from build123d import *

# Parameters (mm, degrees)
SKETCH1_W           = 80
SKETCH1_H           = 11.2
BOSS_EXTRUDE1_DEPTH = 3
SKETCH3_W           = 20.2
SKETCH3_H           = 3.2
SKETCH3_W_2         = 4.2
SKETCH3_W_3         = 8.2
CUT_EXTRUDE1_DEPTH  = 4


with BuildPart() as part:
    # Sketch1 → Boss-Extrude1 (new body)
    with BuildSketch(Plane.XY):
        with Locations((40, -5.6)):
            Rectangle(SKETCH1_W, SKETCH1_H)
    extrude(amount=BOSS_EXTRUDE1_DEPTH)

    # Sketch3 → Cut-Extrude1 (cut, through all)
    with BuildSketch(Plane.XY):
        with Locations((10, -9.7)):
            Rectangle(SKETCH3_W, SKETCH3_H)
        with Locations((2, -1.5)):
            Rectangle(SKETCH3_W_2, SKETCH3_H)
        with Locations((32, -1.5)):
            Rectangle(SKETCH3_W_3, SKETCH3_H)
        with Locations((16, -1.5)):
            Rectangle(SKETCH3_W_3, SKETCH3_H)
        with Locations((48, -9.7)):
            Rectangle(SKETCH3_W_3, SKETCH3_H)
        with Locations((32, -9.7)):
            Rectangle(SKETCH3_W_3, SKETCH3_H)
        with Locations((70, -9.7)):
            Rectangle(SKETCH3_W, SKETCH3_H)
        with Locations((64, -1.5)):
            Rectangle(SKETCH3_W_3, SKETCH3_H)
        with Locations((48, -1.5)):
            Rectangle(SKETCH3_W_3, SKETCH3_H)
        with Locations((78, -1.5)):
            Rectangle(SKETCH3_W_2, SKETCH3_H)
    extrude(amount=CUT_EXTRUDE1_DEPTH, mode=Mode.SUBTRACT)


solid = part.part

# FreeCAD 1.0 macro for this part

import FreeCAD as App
import Part
import Sketcher
from FreeCAD import Vector
Q = App.Units.Quantity


def add_polygon(sketch, points):
    """Adds a closed chain of lines whose ends are joined by coincident constraints."""
    first, n = sketch.GeometryCount, len(points)
    for a, b in zip(points, points[1:] + points[:1]):
        sketch.addGeometry(Part.LineSegment(App.Vector(*a, 0), App.Vector(*b, 0)), False)
    for i in range(n):
        sketch.addConstraint(Sketcher.Constraint("Coincident", first + i, 2, first + (i + 1) % n, 1))

doc = App.newDocument("Part")
body = doc.addObject("PartDesign::Body", "Body")

# Sketch on XY plane
sketch1 = doc.addObject("Sketcher::SketchObject", "Sketch")
body.addObject(sketch1)
sketch1.AttachmentSupport = (doc.XY_Plane, [""])
sketch1.MapMode = "FlatFace"
add_polygon(sketch1, [(0, 0), (0, -11.2), (80, -11.2), (80, 0)])  # lines 0-3
sketch1.addConstraint([
    Sketcher.Constraint("Vertical", 0),
    Sketcher.Constraint("Horizontal", 1),
    Sketcher.Constraint("Vertical", 2),
    Sketcher.Constraint("Horizontal", 3),
    Sketcher.Constraint("Coincident", 3, 2, -1, 1),
    Sketcher.Constraint("DistanceX", 1, 1, 1, 2, Q("80 mm")),
    Sketcher.Constraint("DistanceY", 0, 2, 0, 1, Q("11.2 mm")),
])
pad1 = doc.addObject("PartDesign::Pad", "Pad")
body.addObject(pad1)
pad1.Profile = sketch1
pad1.Length = 3

# Sketch on XY plane
sketch2 = doc.addObject("Sketcher::SketchObject", "Sketch001")
body.addObject(sketch2)
sketch2.AttachmentSupport = (doc.XY_Plane, [""])
sketch2.MapMode = "FlatFace"
add_polygon(sketch2, [(-0.1, -8.1), (-0.1, -11.3), (20.1, -11.3), (20.1, -8.1)])  # lines 0-3
add_polygon(sketch2, [(-0.1, 0.1), (-0.1, -3.1), (4.1, -3.1), (4.1, 0.1)])  # lines 4-7
add_polygon(sketch2, [(27.9, 0.1), (27.9, -3.1), (36.1, -3.1), (36.1, 0.1)])  # lines 8-11
add_polygon(sketch2, [(11.9, 0.1), (11.9, -3.1), (20.1, -3.1), (20.1, 0.1)])  # lines 12-15
add_polygon(sketch2, [(43.9, -8.1), (43.9, -11.3), (52.1, -11.3), (52.1, -8.1)])  # lines 16-19
add_polygon(sketch2, [(27.9, -8.1), (27.9, -11.3), (36.1, -11.3), (36.1, -8.1)])  # lines 20-23
add_polygon(sketch2, [(59.9, -8.1), (59.9, -11.3), (80.1, -11.3), (80.1, -8.1)])  # lines 24-27
add_polygon(sketch2, [(59.9, 0.1), (59.9, -3.1), (68.1, -3.1), (68.1, 0.1)])  # lines 28-31
add_polygon(sketch2, [(43.9, 0.1), (43.9, -3.1), (52.1, -3.1), (52.1, 0.1)])  # lines 32-35
add_polygon(sketch2, [(75.9, 0.1), (75.9, -3.1), (80.1, -3.1), (80.1, 0.1)])  # lines 36-39
sketch2.addConstraint([
    Sketcher.Constraint("Vertical", 0),
    Sketcher.Constraint("Horizontal", 1),
    Sketcher.Constraint("Vertical", 2),
    Sketcher.Constraint("Horizontal", 3),
    Sketcher.Constraint("Vertical", 4),
    Sketcher.Constraint("Horizontal", 5),
    Sketcher.Constraint("Vertical", 6),
    Sketcher.Constraint("Horizontal", 7),
    Sketcher.Constraint("Vertical", 8),
    Sketcher.Constraint("Horizontal", 9),
    Sketcher.Constraint("Vertical", 10),
    Sketcher.Constraint("Horizontal", 11),
    Sketcher.Constraint("Vertical", 12),
    Sketcher.Constraint("Horizontal", 13),
    Sketcher.Constraint("Vertical", 14),
    Sketcher.Constraint("Horizontal", 15),
    Sketcher.Constraint("Vertical", 16),
    Sketcher.Constraint("Horizontal", 17),
    Sketcher.Constraint("Vertical", 18),
    Sketcher.Constraint("Horizontal", 19),
    Sketcher.Constraint("Vertical", 20),
    Sketcher.Constraint("Horizontal", 21),
    Sketcher.Constraint("Vertical", 22),
    Sketcher.Constraint("Horizontal", 23),
    Sketcher.Constraint("Vertical", 24),
    Sketcher.Constraint("Horizontal", 25),
    Sketcher.Constraint("Vertical", 26),
    Sketcher.Constraint("Horizontal", 27),
    Sketcher.Constraint("Vertical", 28),
    Sketcher.Constraint("Horizontal", 29),
    Sketcher.Constraint("Vertical", 30),
    Sketcher.Constraint("Horizontal", 31),
    Sketcher.Constraint("Vertical", 32),
    Sketcher.Constraint("Horizontal", 33),
    Sketcher.Constraint("Vertical", 34),
    Sketcher.Constraint("Horizontal", 35),
    Sketcher.Constraint("Vertical", 36),
    Sketcher.Constraint("Horizontal", 37),
    Sketcher.Constraint("Vertical", 38),
    Sketcher.Constraint("Horizontal", 39),
    Sketcher.Constraint("Horizontal", 5, 2, 8, 2),
    Sketcher.Constraint("Horizontal", 7, 2, 10, 2),
    Sketcher.Constraint("Horizontal", 9, 2, 12, 2),
    Sketcher.Constraint("Horizontal", 11, 2, 14, 2),
    Sketcher.Constraint("Horizontal", 1, 2, 16, 2),
    Sketcher.Constraint("Horizontal", 3, 2, 18, 2),
    Sketcher.Constraint("Horizontal", 17, 2, 20, 2),
    Sketcher.Constraint("Horizontal", 19, 2, 22, 2),
    Sketcher.Constraint("Horizontal", 21, 2, 24, 2),
    Sketcher.Constraint("Horizontal", 23, 2, 26, 2),
    Sketcher.Constraint("Horizontal", 13, 2, 28, 2),
    Sketcher.Constraint("Horizontal", 15, 2, 30, 2),
    Sketcher.Constraint("Horizontal", 29, 2, 32, 2),
    Sketcher.Constraint("Horizontal", 31, 2, 34, 2),
    Sketcher.Constraint("Horizontal", 33, 2, 36, 2),
    Sketcher.Constraint("Horizontal", 35, 2, 38, 2),
    Sketcher.Constraint("Vertical", 3, 2, 4, 2),
    Sketcher.Constraint("Vertical", 2, 2, 13, 2),
    Sketcher.Constraint("Vertical", 11, 2, 20, 2),
    Sketcher.Constraint("Vertical", 10, 2, 21, 2),
    Sketcher.Constraint("Vertical", 27, 2, 28, 2),
    Sketcher.Constraint("Vertical", 19, 2, 32, 2),
    Sketcher.Constraint("Vertical", 18, 2, 33, 2),
    Sketcher.Constraint("Vertical", 26, 2, 37, 2),
    Sketcher.Constraint("Equal", 11, 13),
    Sketcher.Constraint("Equal", 15, 17),
    Sketcher.Constraint("Equal", 3, 25),
    Sketcher.Constraint("Equal", 23, 29),
    Sketcher.Constraint("Equal", 7, 37),
    Sketcher.Constraint("Equal", 2, 4),
    Sketcher.Constraint("DistanceX", 1, 1, 1, 2, Q("20.2 mm")),
    Sketcher.Constraint("DistanceX", 5, 1, 5, 2, Q("4.2 mm")),
    Sketcher.Constraint("DistanceX", 9, 1, 9, 2, Q("8.2 mm")),
    Sketcher.Constraint("DistanceY", 0, 2, 0, 1, Q("3.2 mm")),
    Sketcher.Constraint("DistanceY", 3, 2, 4, 2, Q("5 mm")),
    Sketcher.Constraint("DistanceX", 4, 2, 8, 2, Q("28 mm")),
    Sketcher.Constraint("DistanceX", 8, 2, 16, 2, Q("16 mm")),
    Sketcher.Constraint("DistanceX", 16, 2, 24, 2, Q("16 mm")),
    Sketcher.Constraint("DistanceX", 0, 2, -1, 1, Q("0.1 mm")),
    Sketcher.Constraint("DistanceY", 0, 2, -1, 1, Q("11.3 mm")),
])
pocket1 = doc.addObject("PartDesign::Pocket", "Pocket")
body.addObject(pocket1)
pocket1.Profile = sketch2
pocket1.Type = "ThroughAll"
pocket1.Reversed = True

doc.recompute()
